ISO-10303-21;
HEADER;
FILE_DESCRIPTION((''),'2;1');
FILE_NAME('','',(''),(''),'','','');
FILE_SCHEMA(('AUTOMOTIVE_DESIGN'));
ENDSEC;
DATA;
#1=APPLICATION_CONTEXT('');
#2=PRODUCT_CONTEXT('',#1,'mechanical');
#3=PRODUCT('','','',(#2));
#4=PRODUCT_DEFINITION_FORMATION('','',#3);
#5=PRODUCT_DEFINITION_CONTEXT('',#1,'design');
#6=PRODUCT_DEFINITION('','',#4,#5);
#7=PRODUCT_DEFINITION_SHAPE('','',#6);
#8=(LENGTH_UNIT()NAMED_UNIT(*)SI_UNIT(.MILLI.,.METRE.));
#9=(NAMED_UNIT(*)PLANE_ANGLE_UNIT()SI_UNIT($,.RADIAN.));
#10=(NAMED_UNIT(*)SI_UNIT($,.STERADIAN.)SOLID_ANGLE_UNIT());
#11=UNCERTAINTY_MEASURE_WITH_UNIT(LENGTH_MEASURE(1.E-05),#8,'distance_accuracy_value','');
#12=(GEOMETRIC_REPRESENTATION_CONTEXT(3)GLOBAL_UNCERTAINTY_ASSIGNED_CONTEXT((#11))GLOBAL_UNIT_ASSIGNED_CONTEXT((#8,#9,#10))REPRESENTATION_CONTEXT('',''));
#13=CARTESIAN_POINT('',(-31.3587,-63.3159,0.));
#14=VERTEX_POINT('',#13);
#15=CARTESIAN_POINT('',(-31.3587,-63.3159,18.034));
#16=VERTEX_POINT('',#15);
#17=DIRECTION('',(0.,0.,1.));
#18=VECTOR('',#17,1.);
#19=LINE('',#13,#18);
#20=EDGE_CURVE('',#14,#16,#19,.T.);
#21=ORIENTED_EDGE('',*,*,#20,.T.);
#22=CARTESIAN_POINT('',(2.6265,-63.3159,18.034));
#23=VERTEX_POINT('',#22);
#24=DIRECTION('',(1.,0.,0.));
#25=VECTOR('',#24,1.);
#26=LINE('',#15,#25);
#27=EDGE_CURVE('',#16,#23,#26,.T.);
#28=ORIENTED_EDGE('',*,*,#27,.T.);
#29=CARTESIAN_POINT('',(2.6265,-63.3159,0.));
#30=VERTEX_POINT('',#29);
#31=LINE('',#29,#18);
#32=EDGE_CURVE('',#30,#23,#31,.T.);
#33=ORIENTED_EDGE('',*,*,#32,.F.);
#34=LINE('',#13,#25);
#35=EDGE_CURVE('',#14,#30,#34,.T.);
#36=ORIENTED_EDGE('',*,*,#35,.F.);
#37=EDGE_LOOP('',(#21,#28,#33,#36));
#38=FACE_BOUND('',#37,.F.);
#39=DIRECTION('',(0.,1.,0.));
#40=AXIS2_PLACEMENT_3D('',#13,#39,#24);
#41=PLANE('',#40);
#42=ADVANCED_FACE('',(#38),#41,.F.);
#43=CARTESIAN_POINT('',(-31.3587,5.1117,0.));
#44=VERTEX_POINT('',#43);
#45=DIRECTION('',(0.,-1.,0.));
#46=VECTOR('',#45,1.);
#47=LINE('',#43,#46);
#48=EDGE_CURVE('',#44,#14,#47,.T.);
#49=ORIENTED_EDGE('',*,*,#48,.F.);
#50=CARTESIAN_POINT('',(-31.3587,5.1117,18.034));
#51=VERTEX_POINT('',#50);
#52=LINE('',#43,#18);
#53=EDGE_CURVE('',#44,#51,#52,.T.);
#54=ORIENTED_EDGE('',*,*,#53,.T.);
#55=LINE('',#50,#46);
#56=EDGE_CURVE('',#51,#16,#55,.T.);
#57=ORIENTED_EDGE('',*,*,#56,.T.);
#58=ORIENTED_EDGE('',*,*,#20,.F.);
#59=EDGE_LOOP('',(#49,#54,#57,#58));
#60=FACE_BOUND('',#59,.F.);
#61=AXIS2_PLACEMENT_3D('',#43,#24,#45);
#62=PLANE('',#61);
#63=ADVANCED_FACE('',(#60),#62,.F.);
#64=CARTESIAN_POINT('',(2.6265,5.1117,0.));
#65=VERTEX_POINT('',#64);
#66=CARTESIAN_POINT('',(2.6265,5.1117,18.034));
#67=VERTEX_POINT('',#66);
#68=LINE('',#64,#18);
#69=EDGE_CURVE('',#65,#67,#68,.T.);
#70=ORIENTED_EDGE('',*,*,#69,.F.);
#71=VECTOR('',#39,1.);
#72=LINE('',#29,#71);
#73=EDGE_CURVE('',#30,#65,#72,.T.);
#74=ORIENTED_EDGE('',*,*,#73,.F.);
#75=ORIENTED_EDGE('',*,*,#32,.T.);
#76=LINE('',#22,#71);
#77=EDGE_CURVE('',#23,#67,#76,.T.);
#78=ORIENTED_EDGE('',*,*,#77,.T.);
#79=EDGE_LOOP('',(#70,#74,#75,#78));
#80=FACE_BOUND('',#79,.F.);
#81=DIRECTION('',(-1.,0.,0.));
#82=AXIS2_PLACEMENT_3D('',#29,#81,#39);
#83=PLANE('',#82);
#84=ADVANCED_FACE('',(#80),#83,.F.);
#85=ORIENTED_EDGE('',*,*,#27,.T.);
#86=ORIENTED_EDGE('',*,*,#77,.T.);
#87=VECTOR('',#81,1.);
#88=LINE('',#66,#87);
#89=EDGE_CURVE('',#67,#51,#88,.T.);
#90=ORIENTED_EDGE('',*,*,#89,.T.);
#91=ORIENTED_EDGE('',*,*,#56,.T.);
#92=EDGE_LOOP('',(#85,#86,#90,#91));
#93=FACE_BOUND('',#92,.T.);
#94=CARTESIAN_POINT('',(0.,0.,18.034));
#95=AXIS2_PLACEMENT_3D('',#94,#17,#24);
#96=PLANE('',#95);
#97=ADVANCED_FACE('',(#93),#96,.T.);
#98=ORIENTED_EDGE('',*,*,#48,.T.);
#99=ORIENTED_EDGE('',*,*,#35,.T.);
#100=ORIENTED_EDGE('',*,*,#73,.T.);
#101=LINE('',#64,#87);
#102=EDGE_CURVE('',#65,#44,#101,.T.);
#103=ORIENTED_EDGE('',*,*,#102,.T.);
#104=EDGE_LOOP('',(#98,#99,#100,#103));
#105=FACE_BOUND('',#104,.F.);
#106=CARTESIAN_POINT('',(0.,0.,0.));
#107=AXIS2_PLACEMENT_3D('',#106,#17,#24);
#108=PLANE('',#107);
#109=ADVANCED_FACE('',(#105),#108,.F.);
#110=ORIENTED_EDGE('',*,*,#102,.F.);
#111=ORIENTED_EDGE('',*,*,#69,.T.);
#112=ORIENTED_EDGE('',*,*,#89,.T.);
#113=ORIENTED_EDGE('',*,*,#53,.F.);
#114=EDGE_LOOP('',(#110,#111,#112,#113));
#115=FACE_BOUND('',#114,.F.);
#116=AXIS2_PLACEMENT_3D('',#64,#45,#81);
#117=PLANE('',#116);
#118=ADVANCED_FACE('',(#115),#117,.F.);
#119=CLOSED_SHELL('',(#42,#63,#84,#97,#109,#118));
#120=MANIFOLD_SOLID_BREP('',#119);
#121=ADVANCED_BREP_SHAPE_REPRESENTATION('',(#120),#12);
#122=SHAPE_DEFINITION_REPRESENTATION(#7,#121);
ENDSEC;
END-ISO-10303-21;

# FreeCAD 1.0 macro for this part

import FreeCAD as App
import Part
import Sketcher

V = App.Vector
Q = App.Units.Quantity


def add_polygon(sketch, points):
    """Adds a closed chain of lines whose ends are joined by coincident constraints."""
    first, n = sketch.GeometryCount, len(points)
    for a, b in zip(points, points[1:] + points[:1]):
        sketch.addGeometry(Part.LineSegment(App.Vector(*a, 0), App.Vector(*b, 0)), False)
    for i in range(n):
        sketch.addConstraint(Sketcher.Constraint("Coincident", first + i, 2, first + (i + 1) % n, 1))

doc = App.newDocument("Part")
params = doc.addObject("Spreadsheet::Sheet", "Params")
for row, (alias, value) in enumerate([
    ("sketch1_width", "1.338 in"),
    ("sketch1_height", "2.694 in"),
    ("pad1_length", "0.71 in"),
], start=1):
    params.set(f"A{row}", alias)
    params.set(f"B{row}", "=" + value)
    params.setAlias(f"B{row}", alias)

body = doc.addObject("PartDesign::Body", "Body")

sketch1 = body.newObject("Sketcher::SketchObject", "Sketch")
sketch1.AttachmentSupport = (doc.getObject("XY_Plane"), [""])
sketch1.MapMode = "FlatFace"
add_polygon(sketch1, [(3, -63), (3, 5), (-31, 5), (-31, -63)])
sketch1.addConstraint([
    Sketcher.Constraint("Vertical", 0),
    Sketcher.Constraint("Horizontal", 1),
    Sketcher.Constraint("Vertical", 2),
    Sketcher.Constraint("Horizontal", 3),
    Sketcher.Constraint("DistanceX", 1, 2, 1, 1, Q("1.338 in")),
    Sketcher.Constraint("DistanceY", 0, 1, 0, 2, Q("2.694 in")),
    Sketcher.Constraint("DistanceX", -1, 1, 0, 2, Q("0.1034 in")),
    Sketcher.Constraint("DistanceY", -1, 1, 0, 2, 5.1117),
])
sketch1.setExpression("Constraints[8]", "Params.sketch1_width")
sketch1.setExpression("Constraints[9]", "Params.sketch1_height")
pad1 = body.newObject("PartDesign::Pad", "Pad")
pad1.Profile = sketch1
pad1.setExpression("Length", "Params.pad1_length")

doc.recompute()
